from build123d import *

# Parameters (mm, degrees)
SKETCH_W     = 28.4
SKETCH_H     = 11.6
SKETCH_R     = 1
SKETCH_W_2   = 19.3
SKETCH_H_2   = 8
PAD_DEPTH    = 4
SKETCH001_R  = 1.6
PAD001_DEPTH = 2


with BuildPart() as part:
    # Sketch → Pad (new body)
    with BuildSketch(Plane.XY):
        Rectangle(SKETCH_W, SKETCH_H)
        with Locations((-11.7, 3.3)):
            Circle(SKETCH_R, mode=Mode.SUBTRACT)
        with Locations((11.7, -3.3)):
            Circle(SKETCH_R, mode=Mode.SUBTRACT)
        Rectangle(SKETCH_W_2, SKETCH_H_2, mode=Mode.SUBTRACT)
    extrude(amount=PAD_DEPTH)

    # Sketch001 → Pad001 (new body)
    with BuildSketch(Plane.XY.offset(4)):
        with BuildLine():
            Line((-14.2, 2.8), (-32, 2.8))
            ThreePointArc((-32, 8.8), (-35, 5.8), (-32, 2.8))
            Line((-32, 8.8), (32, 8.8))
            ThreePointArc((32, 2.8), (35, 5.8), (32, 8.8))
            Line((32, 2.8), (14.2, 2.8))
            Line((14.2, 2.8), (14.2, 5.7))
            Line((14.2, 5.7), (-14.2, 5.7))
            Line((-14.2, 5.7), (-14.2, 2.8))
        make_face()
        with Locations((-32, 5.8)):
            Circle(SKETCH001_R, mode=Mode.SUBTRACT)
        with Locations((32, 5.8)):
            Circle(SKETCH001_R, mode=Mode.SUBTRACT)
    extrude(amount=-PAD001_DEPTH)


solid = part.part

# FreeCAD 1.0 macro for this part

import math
import FreeCAD as App
import Part
import Sketcher

V = App.Vector


def add_polygon(sketch, points):
    """Adds a closed chain of lines whose ends are joined by coincident constraints."""
    first, n = sketch.GeometryCount, len(points)
    for a, b in zip(points, points[1:] + points[:1]):
        sketch.addGeometry(Part.LineSegment(App.Vector(*a, 0), App.Vector(*b, 0)), False)
    for i in range(n):
        sketch.addConstraint(Sketcher.Constraint("Coincident", first + i, 2, first + (i + 1) % n, 1))

doc = App.newDocument("Part")
body = doc.addObject("PartDesign::Body", "Body")

# Sketch on XY plane
sketch1 = body.newObject("Sketcher::SketchObject", "Sketch")
sketch1.AttachmentSupport = (doc.getObject("XY_Plane"), [""])
sketch1.MapMode = "FlatFace"
add_polygon(sketch1, [(-14.2, 5.8), (-14.2, -5.8), (14.2, -5.8), (14.2, 5.8)])  # lines 0-3
sketch1.addGeometry(Part.Circle(V(11.7, -3.3, 0), V(0, 0, 1), 1), False)  # 4
add_polygon(sketch1, [(9.7, -4), (-9.7, -4), (-9.7, 4), (9.7, 4)])  # lines 5-8
sketch1.addGeometry(Part.Circle(V(-11.7, 3.3, 0), V(0, 0, 1), 1), False)  # 9
sketch1.addConstraint(Sketcher.Constraint("Vertical", 0))
sketch1.addConstraint(Sketcher.Constraint("Horizontal", 1))
sketch1.addConstraint(Sketcher.Constraint("Vertical", 2))
sketch1.addConstraint(Sketcher.Constraint("Horizontal", 3))
sketch1.addConstraint(Sketcher.Constraint("Horizontal", 5))
sketch1.addConstraint(Sketcher.Constraint("Vertical", 6))
sketch1.addConstraint(Sketcher.Constraint("Horizontal", 7))
sketch1.addConstraint(Sketcher.Constraint("Vertical", 8))
sketch1.addConstraint(Sketcher.Constraint("Equal", 4, 9))
sketch1.addConstraint(Sketcher.Constraint("Symmetric", 4, 3, 9, 3, -1, 1))
sketch1.addConstraint(Sketcher.Constraint("Symmetric", 0, 2, 2, 2, -1, 1))
sketch1.addConstraint(Sketcher.Constraint("Symmetric", 5, 2, 7, 2, -1, 1))
sketch1.addConstraint(Sketcher.Constraint("Diameter", 4, 2.0))
sketch1.addConstraint(Sketcher.Constraint("DistanceY", 6, 1, 6, 2, 8.0))
sketch1.addConstraint(Sketcher.Constraint("DistanceX", 1, 1, 1, 2, 28.4))
sketch1.addConstraint(Sketcher.Constraint("DistanceX", 5, 2, 5, 1, 19.3))
sketch1.addConstraint(Sketcher.Constraint("DistanceY", 0, 2, 0, 1, 11.6))
sketch1.addConstraint(Sketcher.Constraint("DistanceX", -1, 1, 4, 3, 11.7))
sketch1.addConstraint(Sketcher.Constraint("DistanceY", 4, 3, -1, 1, 3.3))
pad1 = body.newObject("PartDesign::Pad", "Pad")
pad1.Profile = sketch1
pad1.Length = 4

# Sketch on XY plane
sketch2 = body.newObject("Sketcher::SketchObject", "Sketch001")
sketch2.AttachmentSupport = (doc.getObject("XY_Plane"), [""])
sketch2.MapMode = "FlatFace"
sketch2.AttachmentOffset = App.Placement(V(0, 0, 4), App.Rotation())
sketch2.addGeometry(Part.LineSegment(V(-32, 2.8, 0), V(-14.2, 2.8, 0)), False)
sketch2.addGeometry(Part.LineSegment(V(-14.2, 2.8, 0), V(-14.2, 5.7, 0)), False)
sketch2.addGeometry(Part.LineSegment(V(-14.2, 5.7, 0), V(14.2, 5.7, 0)), False)
sketch2.addGeometry(Part.LineSegment(V(14.2, 5.7, 0), V(14.2, 2.8, 0)), False)
sketch2.addGeometry(Part.LineSegment(V(14.2, 2.8, 0), V(32, 2.8, 0)), False)
sketch2.addGeometry(Part.ArcOfCircle(Part.Circle(V(32, 5.8, 0), V(0, 0, 1), 3), math.radians(-90), math.radians(90)), False)
sketch2.addGeometry(Part.LineSegment(V(32, 8.8, 0), V(-32, 8.8, 0)), False)
sketch2.addGeometry(Part.ArcOfCircle(Part.Circle(V(-32, 5.8, 0), V(0, 0, 1), 3), math.radians(90), math.radians(270)), False)
sketch2.addGeometry(Part.Circle(V(32, 5.8, 0), V(0, 0, 1), 1.6), False)
sketch2.addGeometry(Part.Circle(V(-32, 5.8, 0), V(0, 0, 1), 1.6), False)
sketch2.addConstraint(Sketcher.Constraint("Coincident", 0, 2, 1, 1))
sketch2.addConstraint(Sketcher.Constraint("Coincident", 1, 2, 2, 1))
sketch2.addConstraint(Sketcher.Constraint("Coincident", 2, 2, 3, 1))
sketch2.addConstraint(Sketcher.Constraint("Coincident", 3, 2, 4, 1))
sketch2.addConstraint(Sketcher.Constraint("Tangent", 4, 2, 5, 1))
sketch2.addConstraint(Sketcher.Constraint("Tangent", 5, 2, 6, 1))
sketch2.addConstraint(Sketcher.Constraint("Tangent", 6, 2, 7, 1))
sketch2.addConstraint(Sketcher.Constraint("Tangent", 7, 2, 0, 1))
sketch2.addConstraint(Sketcher.Constraint("Horizontal", 0))
sketch2.addConstraint(Sketcher.Constraint("Vertical", 1))
sketch2.addConstraint(Sketcher.Constraint("Horizontal", 2))
sketch2.addConstraint(Sketcher.Constraint("Vertical", 3))
sketch2.addConstraint(Sketcher.Constraint("Horizontal", 4))
sketch2.addConstraint(Sketcher.Constraint("Horizontal", 6))
sketch2.addConstraint(Sketcher.Constraint("Coincident", 8, 3, 5, 3))
sketch2.addConstraint(Sketcher.Constraint("Coincident", 9, 3, 7, 3))
sketch2.addConstraint(Sketcher.Constraint("Equal", 5, 7))
sketch2.addConstraint(Sketcher.Constraint("Equal", 8, 9))
sketch2.addConstraint(Sketcher.Constraint("Equal", 0, 4))
sketch2.addConstraint(Sketcher.Constraint("Radius", 5, 3.0))
sketch2.addConstraint(Sketcher.Constraint("Diameter", 8, 3.2))
sketch2.addConstraint(Sketcher.Constraint("DistanceX", 6, 2, 6, 1, 64.0))
sketch2.addConstraint(Sketcher.Constraint("DistanceX", 0, 1, 0, 2, 17.8))
sketch2.addConstraint(Sketcher.Constraint("DistanceY", 1, 1, 1, 2, 2.9))
sketch2.addConstraint(Sketcher.Constraint("DistanceX", -1, 1, 5, 3, 32.0))
sketch2.addConstraint(Sketcher.Constraint("DistanceY", -1, 1, 5, 3, 5.8))
pad2 = body.newObject("PartDesign::Pad", "Pad001")
pad2.Profile = sketch2
pad2.Length = 2
pad2.Reversed = True

doc.recompute()
